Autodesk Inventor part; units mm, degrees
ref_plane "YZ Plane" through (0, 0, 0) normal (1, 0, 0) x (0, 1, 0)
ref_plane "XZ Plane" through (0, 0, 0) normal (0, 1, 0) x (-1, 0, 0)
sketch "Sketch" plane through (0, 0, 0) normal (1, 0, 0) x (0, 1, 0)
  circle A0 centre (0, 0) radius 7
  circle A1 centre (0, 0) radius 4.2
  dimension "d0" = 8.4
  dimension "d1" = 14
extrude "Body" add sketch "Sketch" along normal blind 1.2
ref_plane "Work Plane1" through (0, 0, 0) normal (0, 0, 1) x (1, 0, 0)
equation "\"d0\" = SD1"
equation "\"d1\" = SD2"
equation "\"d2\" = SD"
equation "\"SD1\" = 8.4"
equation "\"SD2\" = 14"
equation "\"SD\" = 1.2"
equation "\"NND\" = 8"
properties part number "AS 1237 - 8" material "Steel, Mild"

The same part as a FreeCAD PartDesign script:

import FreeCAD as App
import Part
import Sketcher

V = App.Vector

doc = App.newDocument("Part")
params = doc.addObject("Spreadsheet::Sheet", "Params")
for row, (alias, value) in enumerate([
    ("sketch1_diameter", "14 mm"),
    ("sketch1_diameter2", "8.4 mm"),
    ("pad1_length", "1.2 mm"),
], start=1):
    params.set(f"A{row}", alias)
    params.set(f"B{row}", "=" + value)
    params.setAlias(f"B{row}", alias)

body = doc.addObject("PartDesign::Body", "Body")

# Sketch on YZ plane
sketch1 = body.newObject("Sketcher::SketchObject", "Sketch")
sketch1.AttachmentSupport = (doc.getObject("YZ_Plane"), [""])
sketch1.MapMode = "FlatFace"
sketch1.addGeometry(Part.Circle(V(0, 0, 0), V(0, 0, 1), 7), False)
sketch1.addGeometry(Part.Circle(V(0, 0, 0), V(0, 0, 1), 4.2), False)
sketch1.addConstraint(Sketcher.Constraint("Coincident", 0, 3, -1, 1))
sketch1.addConstraint(Sketcher.Constraint("Coincident", 1, 3, -1, 1))
sketch1.addConstraint(Sketcher.Constraint("Diameter", 0, 14.0))
sketch1.addConstraint(Sketcher.Constraint("Diameter", 1, 8.4))
sketch1.setExpression("Constraints[2]", "Params.sketch1_diameter")
sketch1.setExpression("Constraints[3]", "Params.sketch1_diameter2")
pad1 = body.newObject("PartDesign::Pad", "Pad")
pad1.Profile = sketch1
pad1.setExpression("Length", "Params.pad1_length")

doc.recompute()
